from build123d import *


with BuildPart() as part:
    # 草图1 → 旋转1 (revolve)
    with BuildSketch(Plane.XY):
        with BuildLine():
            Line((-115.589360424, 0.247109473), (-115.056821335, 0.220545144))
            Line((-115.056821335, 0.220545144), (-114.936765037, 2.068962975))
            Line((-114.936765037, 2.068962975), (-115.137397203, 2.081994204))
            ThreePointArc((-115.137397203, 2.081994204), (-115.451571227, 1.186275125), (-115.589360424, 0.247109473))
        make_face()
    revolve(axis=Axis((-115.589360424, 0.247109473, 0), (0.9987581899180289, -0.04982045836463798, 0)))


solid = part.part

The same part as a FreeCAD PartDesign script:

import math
import FreeCAD as App
import Part
import Sketcher
from FreeCAD import Vector

doc = App.newDocument("Part")
body = doc.addObject("PartDesign::Body", "Body")

# Sketch on XY plane
sketch1 = doc.addObject("Sketcher::SketchObject", "Sketch")
body.addObject(sketch1)
sketch1.AttachmentSupport = (doc.XY_Plane, [""])
sketch1.MapMode = "FlatFace"
sketch1.addGeometry(Part.LineSegment(Vector(-115.59, 0.25, 0), Vector(-115.06, 0.22, 0)), False)
sketch1.addGeometry(Part.LineSegment(Vector(-115.06, 0.22, 0), Vector(-114.94, 2.07, 0)), False)
sketch1.addGeometry(Part.LineSegment(Vector(-114.94, 2.07, 0), Vector(-115.14, 2.08, 0)), False)
sketch1.addGeometry(Part.ArcOfCircle(Part.Circle(Vector(-110.64, 0, 0), Vector(0, 0, 1), 4.96), math.radians(155), math.radians(177)), False)
sketch1.addGeometry(Part.LineSegment(Vector(-115.59, 0.25, 0), Vector(-110.64, 0, 0)), True)  # axis
sketch1.addConstraint(Sketcher.Constraint("Coincident", 0, 2, 1, 1))
sketch1.addConstraint(Sketcher.Constraint("Coincident", 1, 2, 2, 1))
sketch1.addConstraint(Sketcher.Constraint("Coincident", 2, 2, 3, 1))
sketch1.addConstraint(Sketcher.Constraint("Coincident", 3, 2, 0, 1))
sketch1.addConstraint(Sketcher.Constraint("Coincident", 4, 1, 3, 2))
sketch1.addConstraint(Sketcher.Constraint("Coincident", 4, 2, 3, 3))
sketch1.addConstraint(Sketcher.Constraint("PointOnObject", 3, 3, -1))
sketch1.addConstraint(Sketcher.Constraint("Perpendicular", 1, 2))
sketch1.addConstraint(Sketcher.Constraint("Parallel", 0, 4))
sketch1.addConstraint(Sketcher.Constraint("Radius", 3, 4.96))
sketch1.addConstraint(Sketcher.Constraint("Distance", 0, 0.533201))
sketch1.addConstraint(Sketcher.Constraint("DistanceX", 0, 2, 3, 3, 4.421302))
sketch1.addConstraint(Sketcher.Constraint("DistanceX", 3, 3, -1, 1, 110.63552))
sketch1.addConstraint(Sketcher.Constraint("DistanceY", 1, 2, 2, 2, 0.013031))
sketch1.addConstraint(Sketcher.Constraint("DistanceY", 0, 2, 2, 2, 1.861449))
revolution = doc.addObject("PartDesign::Revolution", "Revolution")
body.addObject(revolution)
revolution.Profile = sketch1
revolution.ReferenceAxis = (sketch1, ["Axis0"])
revolution.Angle = 360

doc.recompute()
